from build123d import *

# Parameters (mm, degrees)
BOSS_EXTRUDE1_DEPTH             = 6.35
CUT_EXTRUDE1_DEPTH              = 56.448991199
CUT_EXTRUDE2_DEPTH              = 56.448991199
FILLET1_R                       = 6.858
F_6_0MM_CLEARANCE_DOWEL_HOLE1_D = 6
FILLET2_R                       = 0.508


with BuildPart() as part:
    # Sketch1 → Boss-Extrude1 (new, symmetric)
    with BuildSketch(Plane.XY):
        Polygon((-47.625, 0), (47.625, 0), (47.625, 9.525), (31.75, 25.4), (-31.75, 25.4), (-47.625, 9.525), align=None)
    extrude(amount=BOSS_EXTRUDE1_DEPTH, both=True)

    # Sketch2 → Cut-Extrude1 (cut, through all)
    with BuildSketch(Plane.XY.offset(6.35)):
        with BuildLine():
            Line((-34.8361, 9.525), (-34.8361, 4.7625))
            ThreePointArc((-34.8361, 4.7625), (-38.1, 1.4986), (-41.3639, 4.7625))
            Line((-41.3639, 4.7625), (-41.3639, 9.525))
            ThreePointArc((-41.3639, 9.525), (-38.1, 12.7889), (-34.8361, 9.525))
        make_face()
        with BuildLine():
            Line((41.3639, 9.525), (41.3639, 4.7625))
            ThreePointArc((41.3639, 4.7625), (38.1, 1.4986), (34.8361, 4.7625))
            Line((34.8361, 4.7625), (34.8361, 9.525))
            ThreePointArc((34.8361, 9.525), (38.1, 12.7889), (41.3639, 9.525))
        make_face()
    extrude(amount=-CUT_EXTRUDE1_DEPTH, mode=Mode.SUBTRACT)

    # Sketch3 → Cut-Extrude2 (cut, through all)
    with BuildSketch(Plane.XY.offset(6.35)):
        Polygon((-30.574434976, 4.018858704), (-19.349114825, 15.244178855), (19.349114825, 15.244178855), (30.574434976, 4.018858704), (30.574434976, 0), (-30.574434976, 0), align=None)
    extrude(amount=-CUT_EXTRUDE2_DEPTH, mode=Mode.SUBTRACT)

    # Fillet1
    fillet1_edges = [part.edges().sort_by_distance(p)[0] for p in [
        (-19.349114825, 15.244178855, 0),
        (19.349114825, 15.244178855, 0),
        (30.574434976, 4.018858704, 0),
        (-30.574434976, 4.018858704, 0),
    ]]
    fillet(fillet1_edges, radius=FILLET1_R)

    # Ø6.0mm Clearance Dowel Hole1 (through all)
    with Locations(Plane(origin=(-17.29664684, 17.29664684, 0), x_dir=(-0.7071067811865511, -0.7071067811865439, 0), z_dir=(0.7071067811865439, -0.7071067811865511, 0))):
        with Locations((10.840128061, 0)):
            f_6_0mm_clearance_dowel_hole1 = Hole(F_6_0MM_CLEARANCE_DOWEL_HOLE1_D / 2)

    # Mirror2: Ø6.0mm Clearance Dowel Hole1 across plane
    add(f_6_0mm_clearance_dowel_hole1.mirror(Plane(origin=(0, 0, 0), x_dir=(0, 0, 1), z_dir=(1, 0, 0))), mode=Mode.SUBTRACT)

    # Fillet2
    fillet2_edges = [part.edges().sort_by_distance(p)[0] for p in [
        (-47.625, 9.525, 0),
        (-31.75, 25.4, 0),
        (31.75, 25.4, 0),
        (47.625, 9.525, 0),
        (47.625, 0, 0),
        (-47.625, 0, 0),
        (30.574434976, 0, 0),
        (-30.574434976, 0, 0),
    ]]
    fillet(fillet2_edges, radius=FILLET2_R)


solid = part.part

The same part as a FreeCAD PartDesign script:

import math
import FreeCAD as App
import Part
import Sketcher
Q = App.Units.Quantity


def edges_at(feature, points):
    """Names of the edges that pass closest to the given points."""
    edges = feature.Shape.Edges
    near = lambda p: min(range(len(edges)), key=lambda i: edges[i].distToShape(Part.Vertex(*p))[0])
    return sorted({f"Edge{near(p) + 1}" for p in points})

doc = App.newDocument("Part")
params = doc.addObject("Spreadsheet::Sheet", "Params")
for row, (alias, value) in enumerate([
    ("sketch1_width", "2.5 in"),
    ("sketch1_width2", "3.75 in"),
    ("pad1_length", "0.5 in"),
    ("sketch2_height", "0.1875 in"),
    ("sketch3_length", "0.625 in"),
    ("fillet_radius", "0.27 in"),
    ("hole_diameter", "6 mm"),
    ("fillet2_radius", "0.02 in"),
], start=1):
    params.set(f"A{row}", alias)
    params.set(f"B{row}", "=" + value)
    params.setAlias(f"B{row}", alias)

body = doc.addObject("PartDesign::Body", "Body")

# Sketch on XY plane
sketch1 = doc.addObject("Sketcher::SketchObject", "Sketch")
body.addObject(sketch1)
sketch1.AttachmentSupport = (doc.XY_Plane, [""])
sketch1.MapMode = "FlatFace"
sketch1.addGeometry(Part.LineSegment(App.Vector(-48, 0, 0), App.Vector(48, 0, 0)), False)
sketch1.addGeometry(Part.LineSegment(App.Vector(48, 0, 0), App.Vector(48, 10, 0)), False)
sketch1.addGeometry(Part.LineSegment(App.Vector(48, 10, 0), App.Vector(32, 25, 0)), False)
sketch1.addGeometry(Part.LineSegment(App.Vector(32, 25, 0), App.Vector(-32, 25, 0)), False)
sketch1.addGeometry(Part.LineSegment(App.Vector(-32, 25, 0), App.Vector(-48, 10, 0)), False)
sketch1.addGeometry(Part.LineSegment(App.Vector(-48, 10, 0), App.Vector(-48, 0, 0)), False)
sketch1.addConstraint(Sketcher.Constraint("Coincident", 0, 2, 1, 1))
sketch1.addConstraint(Sketcher.Constraint("Coincident", 1, 2, 2, 1))
sketch1.addConstraint(Sketcher.Constraint("Coincident", 2, 2, 3, 1))
sketch1.addConstraint(Sketcher.Constraint("Coincident", 3, 2, 4, 1))
sketch1.addConstraint(Sketcher.Constraint("Coincident", 4, 2, 5, 1))
sketch1.addConstraint(Sketcher.Constraint("Coincident", 5, 2, 0, 1))
sketch1.addConstraint(Sketcher.Constraint("Horizontal", 0))
sketch1.addConstraint(Sketcher.Constraint("Vertical", 1))
sketch1.addConstraint(Sketcher.Constraint("Horizontal", 3))
sketch1.addConstraint(Sketcher.Constraint("Vertical", 5))
sketch1.addConstraint(Sketcher.Constraint("Symmetric", 0, 2, 5, 2, -1, 1))
sketch1.addConstraint(Sketcher.Constraint("Perpendicular", 2, 4))
sketch1.addConstraint(Sketcher.Constraint("Horizontal", 1, 2, 4, 2))
sketch1.addConstraint(Sketcher.Constraint("Equal", 2, 4))
sketch1.addConstraint(Sketcher.Constraint("DistanceX", 3, 2, 3, 1, Q("2.5 in")))
sketch1.addConstraint(Sketcher.Constraint("DistanceY", -1, 1, 2, 2, Q("1 in")))
sketch1.addConstraint(Sketcher.Constraint("DistanceX", 0, 1, 0, 2, Q("3.75 in")))
sketch1.setExpression("Constraints[14]", "Params.sketch1_width")
sketch1.setExpression("Constraints[16]", "Params.sketch1_width2")
pad1 = doc.addObject("PartDesign::Pad", "Pad")
body.addObject(pad1)
pad1.Profile = sketch1
pad1.setExpression("Length", "Params.pad1_length")
pad1.Midplane = True

# Sketch on XY plane
sketch2 = doc.addObject("Sketcher::SketchObject", "Sketch001")
body.addObject(sketch2)
sketch2.AttachmentSupport = (doc.XY_Plane, [""])
sketch2.MapMode = "FlatFace"
sketch2.AttachmentOffset = App.Placement(App.Vector(0, 0, 0.25 * 25.4), App.Rotation())
sketch2.addGeometry(Part.LineSegment(App.Vector(-34.8, 4.8, 0), App.Vector(-34.8, 9.5, 0)), False)
sketch2.addGeometry(Part.ArcOfCircle(Part.Circle(App.Vector(-38.1, 9.5, 0), App.Vector(0, 0, 1), 3.3), math.radians(0), math.radians(180)), False)
sketch2.addGeometry(Part.LineSegment(App.Vector(-41.4, 9.5, 0), App.Vector(-41.4, 4.8, 0)), False)
sketch2.addGeometry(Part.ArcOfCircle(Part.Circle(App.Vector(-38.1, 4.8, 0), App.Vector(0, 0, 1), 3.3), math.radians(180), math.radians(360)), False)
sketch2.addGeometry(Part.LineSegment(App.Vector(41.4, 4.8, 0), App.Vector(41.4, 9.5, 0)), False)
sketch2.addGeometry(Part.ArcOfCircle(Part.Circle(App.Vector(38.1, 9.5, 0), App.Vector(0, 0, 1), 3.3), math.radians(0), math.radians(180)), False)
sketch2.addGeometry(Part.LineSegment(App.Vector(34.8, 9.5, 0), App.Vector(34.8, 4.8, 0)), False)
sketch2.addGeometry(Part.ArcOfCircle(Part.Circle(App.Vector(38.1, 4.8, 0), App.Vector(0, 0, 1), 3.3), math.radians(180), math.radians(360)), False)
sketch2.addConstraint(Sketcher.Constraint("Tangent", 0, 2, 1, 1))
sketch2.addConstraint(Sketcher.Constraint("Tangent", 1, 2, 2, 1))
sketch2.addConstraint(Sketcher.Constraint("Tangent", 2, 2, 3, 1))
sketch2.addConstraint(Sketcher.Constraint("Tangent", 3, 2, 0, 1))
sketch2.addConstraint(Sketcher.Constraint("Tangent", 4, 2, 5, 1))
sketch2.addConstraint(Sketcher.Constraint("Tangent", 5, 2, 6, 1))
sketch2.addConstraint(Sketcher.Constraint("Tangent", 6, 2, 7, 1))
sketch2.addConstraint(Sketcher.Constraint("Tangent", 7, 2, 4, 1))
sketch2.addConstraint(Sketcher.Constraint("Vertical", 0))
sketch2.addConstraint(Sketcher.Constraint("Vertical", 2))
sketch2.addConstraint(Sketcher.Constraint("Vertical", 4))
sketch2.addConstraint(Sketcher.Constraint("Vertical", 6))
sketch2.addConstraint(Sketcher.Constraint("Equal", 3, 5))
sketch2.addConstraint(Sketcher.Constraint("Symmetric", 1, 3, 5, 3, -2))
sketch2.addConstraint(Sketcher.Constraint("Horizontal", 3, 3, 7, 3))
sketch2.addConstraint(Sketcher.Constraint("DistanceX", 1, 3, 5, 3, Q("3 in")))
sketch2.addConstraint(Sketcher.Constraint("Radius", 1, Q("0.1285 in")))
sketch2.addConstraint(Sketcher.Constraint("DistanceY", 0, 1, 0, 2, Q("0.1875 in")))
sketch2.addConstraint(Sketcher.Constraint("DistanceY", -1, 1, 1, 3, Q("0.375 in")))
sketch2.setExpression("Constraints[17]", "Params.sketch2_height")
pocket1 = doc.addObject("PartDesign::Pocket", "Pocket")
body.addObject(pocket1)
pocket1.Profile = sketch2
pocket1.Type = "ThroughAll"

# Sketch on XY plane
sketch3 = doc.addObject("Sketcher::SketchObject", "Sketch002")
body.addObject(sketch3)
sketch3.AttachmentSupport = (doc.XY_Plane, [""])
sketch3.MapMode = "FlatFace"
sketch3.AttachmentOffset = App.Placement(App.Vector(0, 0, 0.25 * 25.4), App.Rotation())
sketch3.addGeometry(Part.LineSegment(App.Vector(-19.3, 15.2, 0), App.Vector(-30.6, 4, 0)), False)
sketch3.addGeometry(Part.LineSegment(App.Vector(-30.6, 4, 0), App.Vector(-30.6, 0, 0)), False)
sketch3.addGeometry(Part.LineSegment(App.Vector(-30.6, 0, 0), App.Vector(30.6, 0, 0)), False)
sketch3.addGeometry(Part.LineSegment(App.Vector(30.6, 0, 0), App.Vector(30.6, 4, 0)), False)
sketch3.addGeometry(Part.LineSegment(App.Vector(30.6, 4, 0), App.Vector(19.3, 15.2, 0)), False)
sketch3.addGeometry(Part.LineSegment(App.Vector(19.3, 15.2, 0), App.Vector(-19.3, 15.2, 0)), False)
sketch3.addConstraint(Sketcher.Constraint("Coincident", 0, 2, 1, 1))
sketch3.addConstraint(Sketcher.Constraint("Coincident", 1, 2, 2, 1))
sketch3.addConstraint(Sketcher.Constraint("Coincident", 2, 2, 3, 1))
sketch3.addConstraint(Sketcher.Constraint("Coincident", 3, 2, 4, 1))
sketch3.addConstraint(Sketcher.Constraint("Coincident", 4, 2, 5, 1))
sketch3.addConstraint(Sketcher.Constraint("Coincident", 5, 2, 0, 1))
sketch3.addConstraint(Sketcher.Constraint("Vertical", 1))
sketch3.addConstraint(Sketcher.Constraint("Horizontal", 2))
sketch3.addConstraint(Sketcher.Constraint("Vertical", 3))
sketch3.addConstraint(Sketcher.Constraint("Horizontal", 5))
sketch3.addConstraint(Sketcher.Constraint("Symmetric", 1, 2, 2, 2, -1, 1))
sketch3.addConstraint(Sketcher.Constraint("Perpendicular", 0, 4))
sketch3.addConstraint(Sketcher.Constraint("Horizontal", 0, 2, 3, 2))
sketch3.addConstraint(Sketcher.Constraint("Equal", 0, 4))
sketch3.addConstraint(Sketcher.Constraint("Distance", 0, Q("0.625 in")))
sketch3.addConstraint(Sketcher.Constraint("DistanceX", 2, 1, 2, 2, Q("61.14887 mm")))
sketch3.addConstraint(Sketcher.Constraint("DistanceY", 1, 2, 1, 1, Q("4.018859 mm")))
sketch3.setExpression("Constraints[14]", "Params.sketch3_length")
pocket2 = doc.addObject("PartDesign::Pocket", "Pocket001")
body.addObject(pocket2)
pocket2.Profile = sketch3
pocket2.Type = "ThroughAll"
doc.recompute()

fillet = doc.addObject("PartDesign::Fillet", "Fillet")
body.addObject(fillet)
fillet.Base = (pocket2, edges_at(pocket2, [
    (-19.349, 15.244, 0),
    (19.349, 15.244, 0),
    (30.574, 4.019, 0),
    (-30.574, 4.019, 0),
]))
fillet.setExpression("Radius", "Params.fillet_radius")

# Sketch on an angled plane
sketch4 = doc.addObject("Sketcher::SketchObject", "Sketch003")
body.addObject(sketch4)
sketch4.Placement = App.Placement(App.Vector(-17.296647, 17.296647, 0), App.Rotation(App.Vector(-0.707106781, -0.707106781, 0), App.Vector(0, 0, -0.999999999), App.Vector(0.707106781, -0.707106781, 0), "ZXY"))
sketch4.addGeometry(Part.Circle(App.Vector(10.8, 0, 0), App.Vector(0, 0, 1), 3), False)
sketch4.addConstraint(Sketcher.Constraint("PointOnObject", 0, 3, -1))
sketch4.addConstraint(Sketcher.Constraint("Diameter", 0, Q("6 mm")))
sketch4.addConstraint(Sketcher.Constraint("DistanceX", -1, 1, 0, 3, Q("10.840128 mm")))
doc.recompute()
hole = doc.addObject("PartDesign::Hole", "Hole")
body.addObject(hole)
hole.Profile = sketch4
hole.ThreadType = "None"
hole.setExpression("Diameter", "Params.hole_diameter")
hole.DepthType = "ThroughAll"
doc.recompute()

mirrored = doc.addObject("PartDesign::Mirrored", "Mirrored")
body.addObject(mirrored)
mirrored.Originals = [hole]
mirrored.MirrorPlane = (doc.YZ_Plane, [""])
body.Tip = mirrored
doc.recompute()

fillet2 = doc.addObject("PartDesign::Fillet", "Fillet001")
body.addObject(fillet2)
fillet2.Base = (mirrored, edges_at(mirrored, [
    (-47.625, 9.525, 0),
    (-31.75, 25.4, 0),
    (31.75, 25.4, 0),
    (47.625, 9.525, 0),
    (47.625, 0, 0),
    (-47.625, 0, 0),
    (30.574, 0, 0),
    (-30.574, 0, 0),
]))
fillet2.setExpression("Radius", "Params.fillet2_radius")

doc.recompute()
